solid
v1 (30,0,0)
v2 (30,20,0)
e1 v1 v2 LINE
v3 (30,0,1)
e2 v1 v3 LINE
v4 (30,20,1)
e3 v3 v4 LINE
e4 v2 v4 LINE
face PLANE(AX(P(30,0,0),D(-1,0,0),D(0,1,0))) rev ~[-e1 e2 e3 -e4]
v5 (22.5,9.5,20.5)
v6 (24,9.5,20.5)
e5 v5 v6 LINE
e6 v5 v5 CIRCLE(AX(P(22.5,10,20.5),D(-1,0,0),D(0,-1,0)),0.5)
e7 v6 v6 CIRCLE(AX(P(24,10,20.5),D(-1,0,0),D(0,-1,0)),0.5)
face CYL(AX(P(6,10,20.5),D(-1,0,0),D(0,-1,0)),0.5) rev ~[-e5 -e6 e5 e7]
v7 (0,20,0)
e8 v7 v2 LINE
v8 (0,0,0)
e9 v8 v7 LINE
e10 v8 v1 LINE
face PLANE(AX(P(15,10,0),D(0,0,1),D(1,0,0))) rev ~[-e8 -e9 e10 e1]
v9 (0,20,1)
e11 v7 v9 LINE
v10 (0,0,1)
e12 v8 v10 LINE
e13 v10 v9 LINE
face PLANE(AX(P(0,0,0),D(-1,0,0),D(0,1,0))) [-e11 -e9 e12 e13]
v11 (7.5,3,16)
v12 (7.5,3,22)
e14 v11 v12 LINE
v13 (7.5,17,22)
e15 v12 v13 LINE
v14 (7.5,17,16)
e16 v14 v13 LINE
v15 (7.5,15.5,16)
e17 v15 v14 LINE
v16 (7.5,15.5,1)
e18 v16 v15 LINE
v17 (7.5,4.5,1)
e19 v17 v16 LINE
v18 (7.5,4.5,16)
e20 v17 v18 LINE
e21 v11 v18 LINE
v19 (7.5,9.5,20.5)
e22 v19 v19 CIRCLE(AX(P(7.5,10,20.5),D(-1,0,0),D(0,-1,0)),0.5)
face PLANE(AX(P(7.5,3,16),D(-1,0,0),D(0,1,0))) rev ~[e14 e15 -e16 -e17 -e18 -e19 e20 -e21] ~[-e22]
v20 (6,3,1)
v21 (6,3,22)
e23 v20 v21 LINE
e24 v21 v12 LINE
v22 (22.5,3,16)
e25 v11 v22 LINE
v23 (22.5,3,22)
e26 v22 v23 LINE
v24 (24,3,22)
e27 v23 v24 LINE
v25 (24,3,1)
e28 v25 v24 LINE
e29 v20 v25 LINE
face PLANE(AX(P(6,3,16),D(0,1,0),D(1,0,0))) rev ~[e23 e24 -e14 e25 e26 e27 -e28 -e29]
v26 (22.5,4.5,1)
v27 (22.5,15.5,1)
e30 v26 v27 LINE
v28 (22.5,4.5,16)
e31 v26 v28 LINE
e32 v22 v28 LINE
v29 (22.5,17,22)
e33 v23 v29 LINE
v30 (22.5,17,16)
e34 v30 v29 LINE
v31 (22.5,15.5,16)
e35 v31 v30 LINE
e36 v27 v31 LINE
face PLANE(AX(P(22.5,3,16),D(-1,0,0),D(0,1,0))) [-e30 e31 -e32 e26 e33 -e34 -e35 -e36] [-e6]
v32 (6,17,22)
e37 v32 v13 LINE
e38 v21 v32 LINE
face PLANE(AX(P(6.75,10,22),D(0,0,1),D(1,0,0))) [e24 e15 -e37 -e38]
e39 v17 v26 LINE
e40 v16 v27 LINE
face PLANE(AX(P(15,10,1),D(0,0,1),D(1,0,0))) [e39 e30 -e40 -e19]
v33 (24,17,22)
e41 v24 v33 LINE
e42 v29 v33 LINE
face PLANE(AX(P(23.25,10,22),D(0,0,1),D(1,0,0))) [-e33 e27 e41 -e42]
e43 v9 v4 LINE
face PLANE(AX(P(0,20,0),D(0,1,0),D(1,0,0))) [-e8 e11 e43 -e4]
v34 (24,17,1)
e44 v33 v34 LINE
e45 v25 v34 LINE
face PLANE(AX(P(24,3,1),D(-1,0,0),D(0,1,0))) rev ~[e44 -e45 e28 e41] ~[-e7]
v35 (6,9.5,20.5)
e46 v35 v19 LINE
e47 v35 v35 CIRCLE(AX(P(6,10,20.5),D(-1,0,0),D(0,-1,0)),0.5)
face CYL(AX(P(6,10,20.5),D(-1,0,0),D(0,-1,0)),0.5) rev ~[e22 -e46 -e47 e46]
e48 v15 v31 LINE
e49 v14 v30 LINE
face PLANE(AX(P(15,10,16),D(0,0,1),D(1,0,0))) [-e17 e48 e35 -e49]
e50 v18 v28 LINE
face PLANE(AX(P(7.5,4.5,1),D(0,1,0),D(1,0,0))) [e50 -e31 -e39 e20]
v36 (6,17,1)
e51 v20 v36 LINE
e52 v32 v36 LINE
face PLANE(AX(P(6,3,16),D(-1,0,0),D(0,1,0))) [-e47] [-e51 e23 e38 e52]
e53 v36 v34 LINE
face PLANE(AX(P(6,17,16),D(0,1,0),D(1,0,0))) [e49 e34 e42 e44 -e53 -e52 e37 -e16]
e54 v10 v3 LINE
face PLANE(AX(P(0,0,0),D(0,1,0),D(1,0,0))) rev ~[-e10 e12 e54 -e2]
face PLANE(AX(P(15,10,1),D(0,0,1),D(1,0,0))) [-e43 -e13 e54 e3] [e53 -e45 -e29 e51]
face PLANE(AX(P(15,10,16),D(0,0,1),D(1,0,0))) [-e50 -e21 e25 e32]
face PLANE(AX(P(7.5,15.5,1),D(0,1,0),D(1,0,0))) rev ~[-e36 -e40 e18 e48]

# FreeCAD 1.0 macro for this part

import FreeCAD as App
import Part
import Sketcher

V = App.Vector
Q = App.Units.Quantity

doc = App.newDocument("Part")
body = doc.addObject("PartDesign::Body", "Body")

sketch1 = body.newObject("Sketcher::SketchObject", "Sketch")
sketch1.AttachmentSupport = (doc.getObject("XY_Plane"), [""])
sketch1.MapMode = "FlatFace"
sketch1.addGeometry([
    Part.LineSegment(V(0, 20, 0), V(0, 0, 0)),
    Part.LineSegment(V(0, 0, 0), V(30, 0, 0)),
    Part.LineSegment(V(30, 0, 0), V(30, 20, 0)),
    Part.LineSegment(V(30, 20, 0), V(0, 20, 0)),
], False)
sketch1.addConstraint([
    Sketcher.Constraint("Coincident", 0, 2, 1, 1),
    Sketcher.Constraint("Coincident", 1, 2, 2, 1),
    Sketcher.Constraint("Coincident", 2, 2, 3, 1),
    Sketcher.Constraint("Coincident", 3, 2, 0, 1),
    Sketcher.Constraint("Vertical", 0),
    Sketcher.Constraint("Horizontal", 1),
    Sketcher.Constraint("Vertical", 2),
    Sketcher.Constraint("Horizontal", 3),
    Sketcher.Constraint("Coincident", 0, 2, -1, 1),
    Sketcher.Constraint("DistanceX", 1, 1, 1, 2, Q("30 mm")),
    Sketcher.Constraint("DistanceY", 0, 2, 0, 1, Q("20 mm")),
])
pad1 = body.newObject("PartDesign::Pad", "Pad")
pad1.Profile = sketch1
pad1.Length = 1

sketch2 = body.newObject("Sketcher::SketchObject", "Sketch001")
sketch2.AttachmentSupport = (doc.getObject("XY_Plane"), [""])
sketch2.MapMode = "FlatFace"
sketch2.AttachmentOffset = App.Placement(V(0, 0, 1), App.Rotation())
sketch2.addGeometry([
    Part.LineSegment(V(6, 17, 0), V(6, 3, 0)),
    Part.LineSegment(V(6, 3, 0), V(24, 3, 0)),
    Part.LineSegment(V(24, 3, 0), V(24, 17, 0)),
    Part.LineSegment(V(24, 17, 0), V(6, 17, 0)),
    Part.LineSegment(V(22, 4, 0), V(8, 4, 0)),
    Part.LineSegment(V(8, 4, 0), V(8, 16, 0)),
    Part.LineSegment(V(8, 16, 0), V(22, 16, 0)),
    Part.LineSegment(V(22, 16, 0), V(22, 4, 0)),
], False)
sketch2.addConstraint([
    Sketcher.Constraint("Coincident", 0, 2, 1, 1),
    Sketcher.Constraint("Coincident", 1, 2, 2, 1),
    Sketcher.Constraint("Coincident", 2, 2, 3, 1),
    Sketcher.Constraint("Coincident", 3, 2, 0, 1),
    Sketcher.Constraint("Coincident", 4, 2, 5, 1),
    Sketcher.Constraint("Coincident", 5, 2, 6, 1),
    Sketcher.Constraint("Coincident", 6, 2, 7, 1),
    Sketcher.Constraint("Coincident", 7, 2, 4, 1),
    Sketcher.Constraint("Vertical", 0),
    Sketcher.Constraint("Horizontal", 1),
    Sketcher.Constraint("Vertical", 2),
    Sketcher.Constraint("Horizontal", 3),
    Sketcher.Constraint("Horizontal", 4),
    Sketcher.Constraint("Vertical", 5),
    Sketcher.Constraint("Horizontal", 6),
    Sketcher.Constraint("Vertical", 7),
    Sketcher.Constraint("DistanceX", 1, 1, 1, 2, Q("18 mm")),
    Sketcher.Constraint("DistanceX", 4, 2, 4, 1, Q("15 mm")),
    Sketcher.Constraint("DistanceY", 0, 2, 0, 1, Q("14 mm")),
    Sketcher.Constraint("DistanceY", 5, 1, 5, 2, Q("11 mm")),
    Sketcher.Constraint("DistanceX", -1, 1, 0, 2, Q("6 mm")),
    Sketcher.Constraint("DistanceY", -1, 1, 0, 2, Q("3 mm")),
    Sketcher.Constraint("DistanceX", -1, 1, 4, 2, Q("7.5 mm")),
    Sketcher.Constraint("DistanceY", -1, 1, 4, 2, Q("4.5 mm")),
])
pad2 = body.newObject("PartDesign::Pad", "Pad001")
pad2.Profile = sketch2
pad2.Length = 15

sketch3 = body.newObject("Sketcher::SketchObject", "Sketch002")
sketch3.AttachmentSupport = (doc.getObject("XY_Plane"), [""])
sketch3.MapMode = "FlatFace"
sketch3.AttachmentOffset = App.Placement(V(0, 0, 16), App.Rotation())
sketch3.addGeometry([
    Part.LineSegment(V(6, 17, 0), V(6, 3, 0)),
    Part.LineSegment(V(6, 3, 0), V(7.5, 3, 0)),
    Part.LineSegment(V(7.5, 3, 0), V(7.5, 17, 0)),
    Part.LineSegment(V(7.5, 17, 0), V(6, 17, 0)),
    Part.LineSegment(V(22.5, 17, 0), V(22.5, 3, 0)),
    Part.LineSegment(V(22.5, 3, 0), V(24, 3, 0)),
    Part.LineSegment(V(24, 3, 0), V(24, 17, 0)),
    Part.LineSegment(V(24, 17, 0), V(22.5, 17, 0)),
], False)
sketch3.addConstraint([
    Sketcher.Constraint("Coincident", 0, 2, 1, 1),
    Sketcher.Constraint("Coincident", 1, 2, 2, 1),
    Sketcher.Constraint("Coincident", 2, 2, 3, 1),
    Sketcher.Constraint("Coincident", 3, 2, 0, 1),
    Sketcher.Constraint("Coincident", 4, 2, 5, 1),
    Sketcher.Constraint("Coincident", 5, 2, 6, 1),
    Sketcher.Constraint("Coincident", 6, 2, 7, 1),
    Sketcher.Constraint("Coincident", 7, 2, 4, 1),
    Sketcher.Constraint("Vertical", 0),
    Sketcher.Constraint("Horizontal", 1),
    Sketcher.Constraint("Vertical", 2),
    Sketcher.Constraint("Horizontal", 3),
    Sketcher.Constraint("Vertical", 4),
    Sketcher.Constraint("Horizontal", 5),
    Sketcher.Constraint("Vertical", 6),
    Sketcher.Constraint("Horizontal", 7),
    Sketcher.Constraint("Horizontal", 1, 2, 4, 2),
    Sketcher.Constraint("Horizontal", 3, 2, 6, 2),
    Sketcher.Constraint("Equal", 3, 5),
    Sketcher.Constraint("DistanceY", 0, 2, 0, 1, Q("14 mm")),
    Sketcher.Constraint("DistanceX", 1, 1, 1, 2, Q("1.5 mm")),
    Sketcher.Constraint("DistanceX", -1, 1, 0, 2, Q("6 mm")),
    Sketcher.Constraint("DistanceY", -1, 1, 0, 2, Q("3 mm")),
    Sketcher.Constraint("DistanceX", -1, 1, 5, 2, Q("24 mm")),
])
pad3 = body.newObject("PartDesign::Pad", "Pad002")
pad3.Profile = sketch3
pad3.Length = 6

sketch4 = body.newObject("Sketcher::SketchObject", "Sketch003")
sketch4.AttachmentSupport = (doc.getObject("YZ_Plane"), [""])
sketch4.MapMode = "FlatFace"
sketch4.AttachmentOffset = App.Placement(V(0, 0, 6), App.Rotation())
sketch4.addGeometry(Part.Circle(V(10, 20.5, 0), V(0, 0, 1), 0.5), False)
sketch4.addConstraint([
    Sketcher.Constraint("Diameter", 0, Q("1 mm")),
    Sketcher.Constraint("DistanceX", -1, 1, 0, 3, Q("10 mm")),
    Sketcher.Constraint("DistanceY", -1, 1, 0, 3, Q("20.5 mm")),
])
pocket1 = body.newObject("PartDesign::Pocket", "Pocket")
pocket1.Profile = sketch4
pocket1.Type = "ThroughAll"
pocket1.Reversed = True

doc.recompute()
